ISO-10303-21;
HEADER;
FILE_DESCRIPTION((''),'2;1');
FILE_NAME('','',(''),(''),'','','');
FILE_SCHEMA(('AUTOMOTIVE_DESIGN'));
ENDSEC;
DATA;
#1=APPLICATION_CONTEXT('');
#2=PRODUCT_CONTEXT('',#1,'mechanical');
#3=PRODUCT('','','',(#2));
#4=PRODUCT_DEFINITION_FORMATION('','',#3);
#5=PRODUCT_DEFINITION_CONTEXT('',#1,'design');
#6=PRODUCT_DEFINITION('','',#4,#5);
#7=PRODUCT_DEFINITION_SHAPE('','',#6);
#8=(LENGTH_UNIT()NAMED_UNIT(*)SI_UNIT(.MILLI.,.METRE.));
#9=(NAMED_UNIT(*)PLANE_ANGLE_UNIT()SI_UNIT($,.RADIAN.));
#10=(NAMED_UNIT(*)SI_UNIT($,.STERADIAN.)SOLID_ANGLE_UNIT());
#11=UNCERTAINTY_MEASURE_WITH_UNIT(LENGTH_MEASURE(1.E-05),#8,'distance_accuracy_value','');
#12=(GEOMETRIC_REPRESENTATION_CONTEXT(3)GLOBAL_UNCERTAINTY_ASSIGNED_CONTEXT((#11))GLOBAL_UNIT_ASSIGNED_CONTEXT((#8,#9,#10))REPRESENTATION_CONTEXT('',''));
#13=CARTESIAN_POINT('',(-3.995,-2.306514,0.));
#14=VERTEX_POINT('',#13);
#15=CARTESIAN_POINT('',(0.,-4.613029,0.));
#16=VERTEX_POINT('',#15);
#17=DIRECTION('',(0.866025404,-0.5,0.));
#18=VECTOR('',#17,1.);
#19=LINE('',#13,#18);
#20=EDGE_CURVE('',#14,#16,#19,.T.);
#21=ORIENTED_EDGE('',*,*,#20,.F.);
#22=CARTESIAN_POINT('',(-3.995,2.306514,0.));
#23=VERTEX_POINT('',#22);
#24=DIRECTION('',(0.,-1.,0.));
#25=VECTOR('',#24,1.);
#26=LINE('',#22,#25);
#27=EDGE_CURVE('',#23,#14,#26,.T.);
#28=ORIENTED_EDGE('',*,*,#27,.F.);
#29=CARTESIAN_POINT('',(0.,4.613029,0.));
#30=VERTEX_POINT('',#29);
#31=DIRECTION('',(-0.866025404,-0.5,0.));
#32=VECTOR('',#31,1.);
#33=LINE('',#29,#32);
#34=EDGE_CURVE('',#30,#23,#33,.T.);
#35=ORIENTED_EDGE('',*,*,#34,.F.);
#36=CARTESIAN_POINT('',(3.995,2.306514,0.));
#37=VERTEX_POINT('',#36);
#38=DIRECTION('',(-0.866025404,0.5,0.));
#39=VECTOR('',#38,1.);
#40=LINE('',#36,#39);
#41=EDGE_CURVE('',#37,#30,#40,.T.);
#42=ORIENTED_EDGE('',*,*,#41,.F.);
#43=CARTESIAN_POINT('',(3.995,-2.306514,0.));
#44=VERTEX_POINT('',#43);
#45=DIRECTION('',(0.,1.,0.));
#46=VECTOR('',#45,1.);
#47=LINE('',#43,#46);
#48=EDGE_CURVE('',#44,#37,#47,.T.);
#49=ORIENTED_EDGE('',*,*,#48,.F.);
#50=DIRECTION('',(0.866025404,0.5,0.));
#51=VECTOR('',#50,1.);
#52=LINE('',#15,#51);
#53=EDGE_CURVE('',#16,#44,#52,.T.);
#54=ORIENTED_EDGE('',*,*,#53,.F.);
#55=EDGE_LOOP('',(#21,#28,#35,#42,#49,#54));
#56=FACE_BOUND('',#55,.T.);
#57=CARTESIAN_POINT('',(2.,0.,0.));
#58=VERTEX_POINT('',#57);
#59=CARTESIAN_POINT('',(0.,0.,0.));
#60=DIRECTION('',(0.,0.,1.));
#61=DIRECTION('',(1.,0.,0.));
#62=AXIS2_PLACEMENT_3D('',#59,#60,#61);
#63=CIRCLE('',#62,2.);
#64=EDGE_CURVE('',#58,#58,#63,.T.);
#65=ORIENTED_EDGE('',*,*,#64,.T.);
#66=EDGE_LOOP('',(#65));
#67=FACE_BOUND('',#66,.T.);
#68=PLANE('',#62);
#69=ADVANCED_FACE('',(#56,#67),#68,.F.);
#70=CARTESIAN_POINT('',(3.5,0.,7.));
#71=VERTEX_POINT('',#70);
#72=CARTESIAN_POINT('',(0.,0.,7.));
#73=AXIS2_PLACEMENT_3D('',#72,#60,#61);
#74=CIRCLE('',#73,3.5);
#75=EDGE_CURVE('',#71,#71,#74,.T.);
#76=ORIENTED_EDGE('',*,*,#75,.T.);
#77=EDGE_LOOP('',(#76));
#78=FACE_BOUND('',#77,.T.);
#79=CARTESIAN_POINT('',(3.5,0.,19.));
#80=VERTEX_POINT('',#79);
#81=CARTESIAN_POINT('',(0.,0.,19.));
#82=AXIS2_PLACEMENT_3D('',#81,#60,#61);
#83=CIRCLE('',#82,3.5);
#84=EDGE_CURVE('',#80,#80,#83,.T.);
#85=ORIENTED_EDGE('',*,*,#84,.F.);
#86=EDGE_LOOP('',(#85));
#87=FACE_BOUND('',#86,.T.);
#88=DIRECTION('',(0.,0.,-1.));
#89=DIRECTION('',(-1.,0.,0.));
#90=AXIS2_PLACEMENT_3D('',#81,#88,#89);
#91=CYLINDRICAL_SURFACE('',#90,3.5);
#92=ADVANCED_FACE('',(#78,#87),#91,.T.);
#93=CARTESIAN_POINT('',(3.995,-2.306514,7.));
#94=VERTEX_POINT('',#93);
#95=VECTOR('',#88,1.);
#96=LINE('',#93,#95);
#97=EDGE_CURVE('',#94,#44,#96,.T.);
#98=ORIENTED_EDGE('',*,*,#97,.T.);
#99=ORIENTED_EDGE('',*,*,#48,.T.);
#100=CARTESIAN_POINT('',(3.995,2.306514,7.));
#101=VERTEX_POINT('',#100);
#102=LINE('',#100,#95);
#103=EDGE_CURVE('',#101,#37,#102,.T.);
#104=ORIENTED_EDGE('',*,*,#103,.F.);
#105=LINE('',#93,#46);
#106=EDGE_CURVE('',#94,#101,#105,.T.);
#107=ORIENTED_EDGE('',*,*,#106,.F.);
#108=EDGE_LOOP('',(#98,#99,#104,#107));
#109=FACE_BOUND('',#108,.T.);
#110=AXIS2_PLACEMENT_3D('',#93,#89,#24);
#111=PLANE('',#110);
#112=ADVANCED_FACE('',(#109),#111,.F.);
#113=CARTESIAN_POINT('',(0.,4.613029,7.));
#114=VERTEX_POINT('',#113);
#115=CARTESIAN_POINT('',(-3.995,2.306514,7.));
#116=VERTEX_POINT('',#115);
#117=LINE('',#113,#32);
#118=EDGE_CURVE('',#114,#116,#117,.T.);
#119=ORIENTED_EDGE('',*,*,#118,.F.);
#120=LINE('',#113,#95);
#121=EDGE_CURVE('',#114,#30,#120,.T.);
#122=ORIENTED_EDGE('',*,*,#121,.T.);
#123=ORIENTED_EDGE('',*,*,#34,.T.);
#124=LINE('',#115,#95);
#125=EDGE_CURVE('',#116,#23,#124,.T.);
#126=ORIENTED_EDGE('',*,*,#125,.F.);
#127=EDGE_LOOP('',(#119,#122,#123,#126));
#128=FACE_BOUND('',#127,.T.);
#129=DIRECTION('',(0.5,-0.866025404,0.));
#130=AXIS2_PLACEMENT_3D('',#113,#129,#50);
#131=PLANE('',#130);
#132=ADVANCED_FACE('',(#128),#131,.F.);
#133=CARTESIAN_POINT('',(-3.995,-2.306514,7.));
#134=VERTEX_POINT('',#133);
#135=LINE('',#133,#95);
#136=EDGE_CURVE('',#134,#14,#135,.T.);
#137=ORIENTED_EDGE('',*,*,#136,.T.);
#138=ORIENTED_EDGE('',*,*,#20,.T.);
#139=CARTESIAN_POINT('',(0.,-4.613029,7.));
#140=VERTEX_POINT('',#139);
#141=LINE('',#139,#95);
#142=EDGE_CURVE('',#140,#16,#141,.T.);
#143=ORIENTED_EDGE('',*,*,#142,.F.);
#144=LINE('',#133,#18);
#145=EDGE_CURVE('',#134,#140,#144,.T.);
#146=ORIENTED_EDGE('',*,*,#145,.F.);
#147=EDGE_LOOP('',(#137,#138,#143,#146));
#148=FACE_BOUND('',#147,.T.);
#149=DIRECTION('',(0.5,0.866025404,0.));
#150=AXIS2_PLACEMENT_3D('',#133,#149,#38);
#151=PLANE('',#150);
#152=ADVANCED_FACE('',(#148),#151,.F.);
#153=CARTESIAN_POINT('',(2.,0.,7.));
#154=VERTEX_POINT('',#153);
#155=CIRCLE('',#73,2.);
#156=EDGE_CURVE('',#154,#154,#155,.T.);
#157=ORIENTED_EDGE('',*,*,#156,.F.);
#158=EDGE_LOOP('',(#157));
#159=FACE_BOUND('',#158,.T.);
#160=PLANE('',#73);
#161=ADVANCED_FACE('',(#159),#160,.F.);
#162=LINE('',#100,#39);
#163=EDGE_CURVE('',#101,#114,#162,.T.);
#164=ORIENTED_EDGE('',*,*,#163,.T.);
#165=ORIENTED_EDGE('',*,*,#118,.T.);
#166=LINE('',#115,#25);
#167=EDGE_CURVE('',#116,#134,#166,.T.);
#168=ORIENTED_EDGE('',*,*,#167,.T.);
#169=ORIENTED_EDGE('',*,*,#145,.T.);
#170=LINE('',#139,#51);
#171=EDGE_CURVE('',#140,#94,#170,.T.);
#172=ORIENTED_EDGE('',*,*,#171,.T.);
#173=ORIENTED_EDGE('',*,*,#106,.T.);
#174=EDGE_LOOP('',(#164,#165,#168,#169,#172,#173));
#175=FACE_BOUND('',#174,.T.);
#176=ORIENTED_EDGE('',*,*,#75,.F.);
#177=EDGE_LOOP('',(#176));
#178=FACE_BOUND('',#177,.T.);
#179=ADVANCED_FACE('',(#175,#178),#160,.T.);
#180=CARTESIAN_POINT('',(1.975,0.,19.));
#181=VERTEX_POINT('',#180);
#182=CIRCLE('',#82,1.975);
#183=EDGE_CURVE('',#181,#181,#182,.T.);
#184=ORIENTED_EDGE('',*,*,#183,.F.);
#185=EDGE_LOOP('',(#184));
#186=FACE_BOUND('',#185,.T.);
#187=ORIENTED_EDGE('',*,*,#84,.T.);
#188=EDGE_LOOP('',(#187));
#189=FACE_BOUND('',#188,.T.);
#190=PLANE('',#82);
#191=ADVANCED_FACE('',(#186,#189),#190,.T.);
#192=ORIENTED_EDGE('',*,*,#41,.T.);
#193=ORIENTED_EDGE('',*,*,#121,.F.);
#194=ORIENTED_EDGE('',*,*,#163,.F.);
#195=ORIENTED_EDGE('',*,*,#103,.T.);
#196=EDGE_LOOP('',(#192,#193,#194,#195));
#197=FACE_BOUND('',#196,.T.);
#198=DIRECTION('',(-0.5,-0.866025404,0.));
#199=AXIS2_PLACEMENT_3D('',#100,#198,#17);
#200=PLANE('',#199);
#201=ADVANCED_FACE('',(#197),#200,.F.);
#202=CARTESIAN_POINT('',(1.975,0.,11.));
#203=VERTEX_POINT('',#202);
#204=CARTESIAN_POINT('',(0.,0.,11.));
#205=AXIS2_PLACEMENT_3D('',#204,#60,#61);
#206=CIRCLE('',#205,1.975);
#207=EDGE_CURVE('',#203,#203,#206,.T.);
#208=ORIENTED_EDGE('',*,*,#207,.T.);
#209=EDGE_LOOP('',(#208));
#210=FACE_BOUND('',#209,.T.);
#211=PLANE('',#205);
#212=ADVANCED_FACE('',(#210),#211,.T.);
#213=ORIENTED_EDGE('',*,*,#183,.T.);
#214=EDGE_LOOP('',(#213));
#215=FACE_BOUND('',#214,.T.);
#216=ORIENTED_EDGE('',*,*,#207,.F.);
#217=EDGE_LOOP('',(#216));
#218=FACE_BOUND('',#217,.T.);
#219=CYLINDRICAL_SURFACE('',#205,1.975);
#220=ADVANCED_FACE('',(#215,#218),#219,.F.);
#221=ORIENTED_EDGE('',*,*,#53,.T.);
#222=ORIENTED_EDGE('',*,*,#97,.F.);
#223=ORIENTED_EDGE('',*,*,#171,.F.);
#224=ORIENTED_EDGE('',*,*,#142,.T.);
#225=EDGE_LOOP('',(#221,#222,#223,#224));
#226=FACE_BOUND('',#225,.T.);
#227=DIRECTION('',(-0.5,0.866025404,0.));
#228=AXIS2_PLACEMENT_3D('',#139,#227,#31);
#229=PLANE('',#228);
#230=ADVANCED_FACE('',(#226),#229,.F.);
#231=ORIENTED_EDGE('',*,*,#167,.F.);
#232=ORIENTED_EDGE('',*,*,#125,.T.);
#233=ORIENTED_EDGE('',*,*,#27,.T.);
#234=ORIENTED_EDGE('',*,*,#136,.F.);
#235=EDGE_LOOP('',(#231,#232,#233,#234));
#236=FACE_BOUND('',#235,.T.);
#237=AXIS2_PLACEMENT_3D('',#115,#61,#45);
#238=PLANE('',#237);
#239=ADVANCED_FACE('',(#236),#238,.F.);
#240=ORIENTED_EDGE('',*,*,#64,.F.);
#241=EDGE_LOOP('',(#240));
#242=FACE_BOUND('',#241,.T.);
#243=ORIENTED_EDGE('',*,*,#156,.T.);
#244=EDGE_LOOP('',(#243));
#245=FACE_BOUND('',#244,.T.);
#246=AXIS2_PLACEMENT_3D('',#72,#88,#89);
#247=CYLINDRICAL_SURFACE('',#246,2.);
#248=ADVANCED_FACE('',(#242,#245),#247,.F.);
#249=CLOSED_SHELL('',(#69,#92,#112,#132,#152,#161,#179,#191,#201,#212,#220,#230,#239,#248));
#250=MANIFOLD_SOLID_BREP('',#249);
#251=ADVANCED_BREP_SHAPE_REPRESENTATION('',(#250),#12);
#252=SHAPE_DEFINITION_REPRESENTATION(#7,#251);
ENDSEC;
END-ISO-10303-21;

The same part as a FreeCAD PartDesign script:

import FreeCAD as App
import Part
import Sketcher

V = App.Vector
Q = App.Units.Quantity


def add_polygon(sketch, points):
    """Adds a closed chain of lines whose ends are joined by coincident constraints."""
    first, n = sketch.GeometryCount, len(points)
    for a, b in zip(points, points[1:] + points[:1]):
        sketch.addGeometry(Part.LineSegment(App.Vector(*a, 0), App.Vector(*b, 0)), False)
    for i in range(n):
        sketch.addConstraint(Sketcher.Constraint("Coincident", first + i, 2, first + (i + 1) % n, 1))

doc = App.newDocument("Part")
body = doc.addObject("PartDesign::Body", "Body")

sketch1 = body.newObject("Sketcher::SketchObject", "Sketch")
sketch1.AttachmentSupport = (doc.getObject("XY_Plane"), [""])
sketch1.MapMode = "FlatFace"
add_polygon(sketch1, [(0, 4.613029), (-3.995, 2.306514), (-3.995, -2.306514), (0, -4.613029), (3.995, -2.306514), (3.995, 2.306514)])
sketch1.addGeometry(Part.Circle(V(0, 0, 0), V(0, 0, 1), 2), False)
sketch1.addConstraint(Sketcher.Constraint("Vertical", 1))
sketch1.addConstraint(Sketcher.Constraint("Vertical", 4))
sketch1.addConstraint(Sketcher.Constraint("Coincident", 6, 3, -1, 1))
sketch1.addConstraint(Sketcher.Constraint("Symmetric", 0, 2, 3, 2, -1, 1))
sketch1.addConstraint(Sketcher.Constraint("Symmetric", 2, 2, 5, 2, -1, 1))
sketch1.addConstraint(Sketcher.Constraint("PointOnObject", 2, 2, -2))
sketch1.addConstraint(Sketcher.Constraint("Parallel", 2, 5))
sketch1.addConstraint(Sketcher.Constraint("Horizontal", 1, 2, 3, 2))
sketch1.addConstraint(Sketcher.Constraint("Diameter", 6, 4.0))
sketch1.addConstraint(Sketcher.Constraint("Angle", 0, Q("-150 deg")))
sketch1.addConstraint(Sketcher.Constraint("DistanceX", 1, 2, 3, 2, 7.99))
sketch1.addConstraint(Sketcher.Constraint("DistanceY", 1, 2, 1, 1, 4.613029))
pad1 = body.newObject("PartDesign::Pad", "Pad")
pad1.Profile = sketch1
pad1.Length = 7

sketch2 = body.newObject("Sketcher::SketchObject", "Sketch001")
sketch2.AttachmentSupport = (doc.getObject("XY_Plane"), [""])
sketch2.MapMode = "FlatFace"
sketch2.AttachmentOffset = App.Placement(V(0, 0, 7), App.Rotation())
sketch2.addGeometry(Part.Circle(V(0, 0, 0), V(0, 0, 1), 3.5), False)
sketch2.addConstraint(Sketcher.Constraint("Coincident", 0, 3, -1, 1))
sketch2.addConstraint(Sketcher.Constraint("Diameter", 0, 7.0))
pad2 = body.newObject("PartDesign::Pad", "Pad001")
pad2.Profile = sketch2
pad2.Length = 12

sketch3 = body.newObject("Sketcher::SketchObject", "Sketch002")
sketch3.AttachmentSupport = (doc.getObject("XY_Plane"), [""])
sketch3.MapMode = "FlatFace"
sketch3.AttachmentOffset = App.Placement(V(0, 0, 19), App.Rotation())
sketch3.addGeometry(Part.Circle(V(0, 0, 0), V(0, 0, 1), 1.975), False)
sketch3.addConstraint(Sketcher.Constraint("Coincident", 0, 3, -1, 1))
sketch3.addConstraint(Sketcher.Constraint("Diameter", 0, 3.95))
pocket1 = body.newObject("PartDesign::Pocket", "Pocket")
pocket1.Profile = sketch3
pocket1.Length = 8

doc.recompute()
